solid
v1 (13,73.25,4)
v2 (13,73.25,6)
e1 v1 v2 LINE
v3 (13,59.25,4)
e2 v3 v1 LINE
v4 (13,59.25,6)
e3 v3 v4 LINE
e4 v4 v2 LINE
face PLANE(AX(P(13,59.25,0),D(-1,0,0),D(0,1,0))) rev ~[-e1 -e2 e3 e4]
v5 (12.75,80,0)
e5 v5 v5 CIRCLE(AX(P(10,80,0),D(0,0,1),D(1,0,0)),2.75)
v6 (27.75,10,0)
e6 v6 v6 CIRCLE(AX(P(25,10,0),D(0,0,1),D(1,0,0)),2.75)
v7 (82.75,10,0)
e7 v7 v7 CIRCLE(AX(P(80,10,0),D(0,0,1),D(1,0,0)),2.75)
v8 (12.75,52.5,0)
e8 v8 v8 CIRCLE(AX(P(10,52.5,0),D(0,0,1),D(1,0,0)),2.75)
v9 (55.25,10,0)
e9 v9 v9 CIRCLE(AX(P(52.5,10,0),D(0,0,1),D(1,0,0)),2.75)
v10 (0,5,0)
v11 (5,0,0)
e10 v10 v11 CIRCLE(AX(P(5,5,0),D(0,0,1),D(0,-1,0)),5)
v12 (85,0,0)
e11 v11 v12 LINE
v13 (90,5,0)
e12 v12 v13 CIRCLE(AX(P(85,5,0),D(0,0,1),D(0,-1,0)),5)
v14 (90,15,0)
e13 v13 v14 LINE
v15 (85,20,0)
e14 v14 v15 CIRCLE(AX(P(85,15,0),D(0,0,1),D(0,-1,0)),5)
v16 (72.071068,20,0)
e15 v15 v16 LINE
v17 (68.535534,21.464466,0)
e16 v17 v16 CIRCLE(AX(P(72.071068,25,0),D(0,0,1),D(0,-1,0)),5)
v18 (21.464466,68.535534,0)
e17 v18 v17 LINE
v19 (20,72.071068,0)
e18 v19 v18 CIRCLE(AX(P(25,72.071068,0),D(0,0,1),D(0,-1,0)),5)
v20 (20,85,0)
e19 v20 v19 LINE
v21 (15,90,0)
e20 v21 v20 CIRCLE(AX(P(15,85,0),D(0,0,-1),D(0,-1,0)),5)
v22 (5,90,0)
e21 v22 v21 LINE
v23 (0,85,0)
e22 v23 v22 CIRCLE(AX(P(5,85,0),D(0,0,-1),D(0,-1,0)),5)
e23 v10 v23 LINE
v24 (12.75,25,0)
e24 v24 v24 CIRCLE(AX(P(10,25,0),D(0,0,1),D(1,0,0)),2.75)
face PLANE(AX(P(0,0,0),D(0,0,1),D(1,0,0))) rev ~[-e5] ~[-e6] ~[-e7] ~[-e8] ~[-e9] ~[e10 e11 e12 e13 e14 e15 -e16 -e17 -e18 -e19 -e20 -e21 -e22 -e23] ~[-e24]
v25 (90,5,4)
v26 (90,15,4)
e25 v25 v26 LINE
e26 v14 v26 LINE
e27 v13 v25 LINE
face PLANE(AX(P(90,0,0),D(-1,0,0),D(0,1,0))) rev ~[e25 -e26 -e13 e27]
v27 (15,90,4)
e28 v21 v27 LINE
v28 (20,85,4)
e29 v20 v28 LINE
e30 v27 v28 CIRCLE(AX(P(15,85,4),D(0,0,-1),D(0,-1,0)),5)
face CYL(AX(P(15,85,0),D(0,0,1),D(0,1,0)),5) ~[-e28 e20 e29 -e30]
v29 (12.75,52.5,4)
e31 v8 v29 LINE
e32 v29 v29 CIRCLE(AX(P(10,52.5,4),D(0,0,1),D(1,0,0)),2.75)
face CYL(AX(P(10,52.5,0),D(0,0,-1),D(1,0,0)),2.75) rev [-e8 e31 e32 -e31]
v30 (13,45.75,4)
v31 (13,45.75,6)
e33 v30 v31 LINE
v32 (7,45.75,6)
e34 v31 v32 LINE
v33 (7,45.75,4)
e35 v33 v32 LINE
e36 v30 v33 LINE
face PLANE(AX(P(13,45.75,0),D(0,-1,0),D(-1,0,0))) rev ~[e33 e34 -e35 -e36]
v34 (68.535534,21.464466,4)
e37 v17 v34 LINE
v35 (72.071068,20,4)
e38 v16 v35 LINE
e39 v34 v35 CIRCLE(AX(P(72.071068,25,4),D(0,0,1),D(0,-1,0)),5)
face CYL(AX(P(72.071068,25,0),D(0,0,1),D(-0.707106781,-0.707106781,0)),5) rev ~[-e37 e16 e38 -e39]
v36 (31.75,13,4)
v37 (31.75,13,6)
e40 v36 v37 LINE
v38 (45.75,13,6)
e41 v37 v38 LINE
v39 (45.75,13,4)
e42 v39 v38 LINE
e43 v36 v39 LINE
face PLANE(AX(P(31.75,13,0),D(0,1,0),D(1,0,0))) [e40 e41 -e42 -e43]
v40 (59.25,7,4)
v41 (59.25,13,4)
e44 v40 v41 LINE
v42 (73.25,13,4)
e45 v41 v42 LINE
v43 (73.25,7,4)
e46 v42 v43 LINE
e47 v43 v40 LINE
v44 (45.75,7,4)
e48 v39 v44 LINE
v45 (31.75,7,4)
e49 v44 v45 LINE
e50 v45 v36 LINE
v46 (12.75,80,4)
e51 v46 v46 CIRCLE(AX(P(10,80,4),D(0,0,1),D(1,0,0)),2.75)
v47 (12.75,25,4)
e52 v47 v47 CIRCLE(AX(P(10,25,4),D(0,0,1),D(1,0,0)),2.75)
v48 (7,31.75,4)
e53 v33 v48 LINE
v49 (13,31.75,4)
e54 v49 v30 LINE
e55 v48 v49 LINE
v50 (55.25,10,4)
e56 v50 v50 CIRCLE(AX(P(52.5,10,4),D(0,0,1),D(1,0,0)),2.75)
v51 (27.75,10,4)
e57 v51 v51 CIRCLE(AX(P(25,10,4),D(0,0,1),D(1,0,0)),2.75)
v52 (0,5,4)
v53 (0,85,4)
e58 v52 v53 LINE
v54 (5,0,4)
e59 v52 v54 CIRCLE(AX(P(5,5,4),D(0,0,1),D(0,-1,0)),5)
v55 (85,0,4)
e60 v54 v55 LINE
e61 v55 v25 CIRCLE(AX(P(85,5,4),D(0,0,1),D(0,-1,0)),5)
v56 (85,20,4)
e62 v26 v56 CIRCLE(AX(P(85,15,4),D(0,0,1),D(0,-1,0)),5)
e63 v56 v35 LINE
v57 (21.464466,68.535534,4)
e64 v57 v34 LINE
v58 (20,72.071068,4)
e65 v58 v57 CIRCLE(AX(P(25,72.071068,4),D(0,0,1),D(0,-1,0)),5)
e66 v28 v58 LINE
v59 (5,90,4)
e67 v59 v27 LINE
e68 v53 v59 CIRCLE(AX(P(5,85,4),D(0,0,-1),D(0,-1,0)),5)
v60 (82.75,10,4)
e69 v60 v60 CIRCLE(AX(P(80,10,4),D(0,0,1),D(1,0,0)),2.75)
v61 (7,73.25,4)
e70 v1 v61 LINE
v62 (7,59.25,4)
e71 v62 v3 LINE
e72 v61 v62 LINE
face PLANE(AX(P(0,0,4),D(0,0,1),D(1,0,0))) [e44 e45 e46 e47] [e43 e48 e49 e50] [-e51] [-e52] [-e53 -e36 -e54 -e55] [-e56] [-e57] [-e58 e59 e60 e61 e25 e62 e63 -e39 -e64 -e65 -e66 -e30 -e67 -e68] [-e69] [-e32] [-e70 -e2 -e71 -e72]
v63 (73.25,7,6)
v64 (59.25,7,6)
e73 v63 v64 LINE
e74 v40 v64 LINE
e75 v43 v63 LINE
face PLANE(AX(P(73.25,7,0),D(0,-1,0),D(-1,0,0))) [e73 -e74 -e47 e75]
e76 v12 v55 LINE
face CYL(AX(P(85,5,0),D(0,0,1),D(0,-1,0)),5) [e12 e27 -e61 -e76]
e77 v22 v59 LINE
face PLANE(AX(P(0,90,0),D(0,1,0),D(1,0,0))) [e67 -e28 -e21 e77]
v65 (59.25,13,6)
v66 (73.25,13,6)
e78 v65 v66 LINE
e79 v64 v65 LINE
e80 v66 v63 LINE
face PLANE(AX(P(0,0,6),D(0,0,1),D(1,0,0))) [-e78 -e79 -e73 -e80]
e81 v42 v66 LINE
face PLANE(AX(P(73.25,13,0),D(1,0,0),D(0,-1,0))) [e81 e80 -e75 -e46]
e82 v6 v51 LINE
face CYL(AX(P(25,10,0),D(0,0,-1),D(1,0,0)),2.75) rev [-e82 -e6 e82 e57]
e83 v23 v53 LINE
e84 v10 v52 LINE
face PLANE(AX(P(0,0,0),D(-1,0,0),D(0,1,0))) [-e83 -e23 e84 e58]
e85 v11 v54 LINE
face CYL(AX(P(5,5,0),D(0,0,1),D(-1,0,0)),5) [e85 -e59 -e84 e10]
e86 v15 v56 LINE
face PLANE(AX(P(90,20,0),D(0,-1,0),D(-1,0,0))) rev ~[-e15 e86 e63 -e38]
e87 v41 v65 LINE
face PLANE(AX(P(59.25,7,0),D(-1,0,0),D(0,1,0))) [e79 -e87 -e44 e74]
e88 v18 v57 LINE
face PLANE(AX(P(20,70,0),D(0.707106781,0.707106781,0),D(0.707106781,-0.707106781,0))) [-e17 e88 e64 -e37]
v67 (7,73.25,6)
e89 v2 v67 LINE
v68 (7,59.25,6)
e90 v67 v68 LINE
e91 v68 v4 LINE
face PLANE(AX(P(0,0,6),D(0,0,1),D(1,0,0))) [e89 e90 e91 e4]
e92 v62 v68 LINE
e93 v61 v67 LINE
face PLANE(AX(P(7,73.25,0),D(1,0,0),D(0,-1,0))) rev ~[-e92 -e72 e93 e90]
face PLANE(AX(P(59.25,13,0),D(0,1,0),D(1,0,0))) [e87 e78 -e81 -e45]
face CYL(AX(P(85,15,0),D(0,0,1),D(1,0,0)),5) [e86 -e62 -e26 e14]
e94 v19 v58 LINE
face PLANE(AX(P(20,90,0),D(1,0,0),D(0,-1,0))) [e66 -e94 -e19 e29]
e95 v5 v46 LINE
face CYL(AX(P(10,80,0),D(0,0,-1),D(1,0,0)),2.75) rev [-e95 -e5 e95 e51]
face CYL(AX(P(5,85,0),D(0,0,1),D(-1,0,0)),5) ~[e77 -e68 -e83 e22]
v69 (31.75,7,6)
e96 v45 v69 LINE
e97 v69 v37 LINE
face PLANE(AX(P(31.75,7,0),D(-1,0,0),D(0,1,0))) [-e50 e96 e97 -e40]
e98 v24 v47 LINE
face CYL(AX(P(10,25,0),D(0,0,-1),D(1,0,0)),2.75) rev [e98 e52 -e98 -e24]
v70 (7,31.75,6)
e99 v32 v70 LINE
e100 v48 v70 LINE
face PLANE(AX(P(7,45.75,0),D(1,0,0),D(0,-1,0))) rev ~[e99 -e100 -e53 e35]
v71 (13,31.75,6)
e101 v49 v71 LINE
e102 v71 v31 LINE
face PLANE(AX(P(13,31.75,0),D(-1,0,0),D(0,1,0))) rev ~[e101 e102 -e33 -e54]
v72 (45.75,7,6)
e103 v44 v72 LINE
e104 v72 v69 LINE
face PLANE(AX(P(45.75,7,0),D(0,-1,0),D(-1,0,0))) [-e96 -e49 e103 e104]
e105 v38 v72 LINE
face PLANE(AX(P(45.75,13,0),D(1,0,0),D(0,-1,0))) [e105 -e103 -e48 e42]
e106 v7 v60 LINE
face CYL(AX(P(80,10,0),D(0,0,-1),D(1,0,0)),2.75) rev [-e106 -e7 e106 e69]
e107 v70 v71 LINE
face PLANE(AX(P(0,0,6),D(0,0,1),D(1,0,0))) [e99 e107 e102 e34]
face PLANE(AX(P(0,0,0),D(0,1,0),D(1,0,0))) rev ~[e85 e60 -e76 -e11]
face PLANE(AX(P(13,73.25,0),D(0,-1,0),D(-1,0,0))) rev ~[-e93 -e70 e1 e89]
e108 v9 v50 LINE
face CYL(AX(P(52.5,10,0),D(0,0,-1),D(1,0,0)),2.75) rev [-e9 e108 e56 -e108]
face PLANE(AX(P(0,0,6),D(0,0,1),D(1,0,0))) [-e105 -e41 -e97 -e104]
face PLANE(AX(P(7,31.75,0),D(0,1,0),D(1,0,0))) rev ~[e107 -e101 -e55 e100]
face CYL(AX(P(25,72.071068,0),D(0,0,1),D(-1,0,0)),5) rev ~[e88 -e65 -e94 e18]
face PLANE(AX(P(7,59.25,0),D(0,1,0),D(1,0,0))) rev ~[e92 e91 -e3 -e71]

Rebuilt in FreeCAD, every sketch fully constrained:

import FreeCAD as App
import Part
import Sketcher
from FreeCAD import Vector
Q = App.Units.Quantity


def edges_at(feature, points):
    """Names of the edges that pass closest to the given points."""
    edges = feature.Shape.Edges
    near = lambda p: min(range(len(edges)), key=lambda i: edges[i].distToShape(Part.Vertex(*p))[0])
    return sorted({f"Edge{near(p) + 1}" for p in points})

doc = App.newDocument("Part")
params = doc.addObject("Spreadsheet::Sheet", "Params")
for row, (alias, value) in enumerate([
    ("sketch1_diameter", "5.5 mm"),
    ("sketch1_width", "90 mm"),
    ("sketch1_width2", "20 mm"),
    ("sketch1_width3", "14 mm"),
    ("sketch1_width4", "6 mm"),
    ("pad1_length", "4 mm"),
    ("sketch2_width", "14 mm"),
    ("sketch2_width2", "6 mm"),
    ("pad2_length", "6 mm"),
    ("fillet_radius", "5 mm"),
], start=1):
    params.set(f"A{row}", alias)
    params.set(f"B{row}", "=" + value)
    params.setAlias(f"B{row}", alias)

body = doc.addObject("PartDesign::Body", "Body")

# Sketch on XY plane
sketch1 = doc.addObject("Sketcher::SketchObject", "Sketch")
body.addObject(sketch1)
sketch1.AttachmentSupport = (doc.XY_Plane, [""])
sketch1.MapMode = "FlatFace"
sketch1.addGeometry([
    Part.LineSegment(Vector(0, 90, 0), Vector(0, 0, 0)),  # 0
    Part.LineSegment(Vector(0, 0, 0), Vector(90, 0, 0)),  # 1
    Part.LineSegment(Vector(90, 0, 0), Vector(90, 20, 0)),  # 2
    Part.LineSegment(Vector(90, 20, 0), Vector(70, 20, 0)),  # 3
    Part.LineSegment(Vector(70, 20, 0), Vector(20, 70, 0)),  # 4
    Part.LineSegment(Vector(20, 70, 0), Vector(20, 90, 0)),  # 5
    Part.LineSegment(Vector(20, 90, 0), Vector(0, 90, 0)),  # 6
    Part.Circle(Vector(25, 10, 0), Vector(0, 0, 1), 2.8),  # 7
    Part.LineSegment(Vector(45.8, 13, 0), Vector(45.8, 7, 0)),  # 8
    Part.LineSegment(Vector(45.8, 7, 0), Vector(31.8, 7, 0)),  # 9
    Part.LineSegment(Vector(31.8, 7, 0), Vector(31.8, 13, 0)),  # 10
    Part.LineSegment(Vector(31.8, 13, 0), Vector(45.8, 13, 0)),  # 11
    Part.Circle(Vector(10, 25, 0), Vector(0, 0, 1), 2.8),  # 12
    Part.LineSegment(Vector(13, 31.8, 0), Vector(7, 31.8, 0)),  # 13
    Part.LineSegment(Vector(7, 31.8, 0), Vector(7, 45.8, 0)),  # 14
    Part.LineSegment(Vector(7, 45.8, 0), Vector(13, 45.8, 0)),  # 15
    Part.LineSegment(Vector(13, 45.8, 0), Vector(13, 31.8, 0)),  # 16
    Part.Circle(Vector(52.5, 10, 0), Vector(0, 0, 1), 2.8),  # 17
    Part.LineSegment(Vector(73.2, 13, 0), Vector(73.2, 7, 0)),  # 18
    Part.LineSegment(Vector(73.2, 7, 0), Vector(59.2, 7, 0)),  # 19
    Part.LineSegment(Vector(59.2, 7, 0), Vector(59.2, 13, 0)),  # 20
    Part.LineSegment(Vector(59.2, 13, 0), Vector(73.2, 13, 0)),  # 21
    Part.Circle(Vector(80, 10, 0), Vector(0, 0, 1), 2.8),  # 22
    Part.Circle(Vector(10, 52.5, 0), Vector(0, 0, 1), 2.8),  # 23
    Part.LineSegment(Vector(13, 59.2, 0), Vector(7, 59.2, 0)),  # 24
    Part.LineSegment(Vector(7, 59.2, 0), Vector(7, 73.2, 0)),  # 25
    Part.LineSegment(Vector(7, 73.2, 0), Vector(13, 73.2, 0)),  # 26
    Part.LineSegment(Vector(13, 73.2, 0), Vector(13, 59.2, 0)),  # 27
    Part.Circle(Vector(10, 80, 0), Vector(0, 0, 1), 2.8),  # 28
], False)
sketch1.addConstraint([
    Sketcher.Constraint("Coincident", 0, 2, 1, 1),
    Sketcher.Constraint("Coincident", 1, 2, 2, 1),
    Sketcher.Constraint("Coincident", 2, 2, 3, 1),
    Sketcher.Constraint("Coincident", 3, 2, 4, 1),
    Sketcher.Constraint("Coincident", 4, 2, 5, 1),
    Sketcher.Constraint("Coincident", 5, 2, 6, 1),
    Sketcher.Constraint("Coincident", 6, 2, 0, 1),
    Sketcher.Constraint("Coincident", 8, 2, 9, 1),
    Sketcher.Constraint("Coincident", 9, 2, 10, 1),
    Sketcher.Constraint("Coincident", 10, 2, 11, 1),
    Sketcher.Constraint("Coincident", 11, 2, 8, 1),
    Sketcher.Constraint("Coincident", 13, 2, 14, 1),
    Sketcher.Constraint("Coincident", 14, 2, 15, 1),
    Sketcher.Constraint("Coincident", 15, 2, 16, 1),
    Sketcher.Constraint("Coincident", 16, 2, 13, 1),
    Sketcher.Constraint("Coincident", 18, 2, 19, 1),
    Sketcher.Constraint("Coincident", 19, 2, 20, 1),
    Sketcher.Constraint("Coincident", 20, 2, 21, 1),
    Sketcher.Constraint("Coincident", 21, 2, 18, 1),
    Sketcher.Constraint("Coincident", 24, 2, 25, 1),
    Sketcher.Constraint("Coincident", 25, 2, 26, 1),
    Sketcher.Constraint("Coincident", 26, 2, 27, 1),
    Sketcher.Constraint("Coincident", 27, 2, 24, 1),
    Sketcher.Constraint("Vertical", 0),
    Sketcher.Constraint("Horizontal", 1),
    Sketcher.Constraint("Vertical", 2),
    Sketcher.Constraint("Horizontal", 3),
    Sketcher.Constraint("Vertical", 5),
    Sketcher.Constraint("Horizontal", 6),
    Sketcher.Constraint("Vertical", 8),
    Sketcher.Constraint("Horizontal", 9),
    Sketcher.Constraint("Vertical", 10),
    Sketcher.Constraint("Horizontal", 11),
    Sketcher.Constraint("Horizontal", 13),
    Sketcher.Constraint("Vertical", 14),
    Sketcher.Constraint("Horizontal", 15),
    Sketcher.Constraint("Vertical", 16),
    Sketcher.Constraint("Vertical", 18),
    Sketcher.Constraint("Horizontal", 19),
    Sketcher.Constraint("Vertical", 20),
    Sketcher.Constraint("Horizontal", 21),
    Sketcher.Constraint("Horizontal", 24),
    Sketcher.Constraint("Vertical", 25),
    Sketcher.Constraint("Horizontal", 26),
    Sketcher.Constraint("Vertical", 27),
    Sketcher.Constraint("Coincident", 0, 2, -1, 1),
    Sketcher.Constraint("Equal", 7, 12),
    Sketcher.Constraint("Equal", 12, 17),
    Sketcher.Constraint("Equal", 17, 22),
    Sketcher.Constraint("Equal", 22, 23),
    Sketcher.Constraint("Equal", 23, 28),
    Sketcher.Constraint("Horizontal", 7, 3, 17, 3),
    Sketcher.Constraint("Horizontal", 17, 3, 22, 3),
    Sketcher.Constraint("Horizontal", 9, 2, 18, 2),
    Sketcher.Constraint("Horizontal", 11, 2, 20, 2),
    Sketcher.Constraint("Vertical", 12, 3, 23, 3),
    Sketcher.Constraint("Vertical", 23, 3, 28, 3),
    Sketcher.Constraint("Vertical", 14, 2, 24, 2),
    Sketcher.Constraint("Vertical", 16, 2, 26, 2),
    Sketcher.Constraint("Equal", 3, 6),
    Sketcher.Constraint("Equal", 11, 19),
    Sketcher.Constraint("Equal", 1, 0),
    Sketcher.Constraint("Equal", 6, 2),
    Sketcher.Constraint("Equal", 2, 5),
    Sketcher.Constraint("Equal", 26, 8),
    Sketcher.Constraint("Equal", 21, 14),
    Sketcher.Constraint("Equal", 16, 25),
    Sketcher.Constraint("Diameter", 7, Q("5.5 mm")),
    Sketcher.Constraint("DistanceX", 1, 1, 1, 2, Q("90 mm")),
    Sketcher.Constraint("DistanceX", 3, 2, 3, 1, Q("20 mm")),
    Sketcher.Constraint("DistanceX", 9, 2, 9, 1, Q("14 mm")),
    Sketcher.Constraint("DistanceX", 13, 2, 13, 1, Q("6 mm")),
    Sketcher.Constraint("DistanceY", -1, 1, 7, 3, Q("10 mm")),
    Sketcher.Constraint("DistanceX", -1, 1, 12, 3, Q("10 mm")),
    Sketcher.Constraint("DistanceX", 22, 3, 1, 2, Q("10 mm")),
    Sketcher.Constraint("DistanceX", 7, 3, 1, 2, Q("65 mm")),
    Sketcher.Constraint("DistanceY", 4, 2, 28, 3, Q("10 mm")),
    Sketcher.Constraint("DistanceY", 12, 3, 4, 2, Q("45 mm")),
    Sketcher.Constraint("DistanceX", 17, 3, 1, 2, Q("37.5 mm")),
    Sketcher.Constraint("DistanceY", 23, 3, 5, 2, Q("37.5 mm")),
    Sketcher.Constraint("DistanceY", -1, 1, 8, 2, Q("7 mm")),
    Sketcher.Constraint("DistanceX", -1, 1, 13, 2, Q("7 mm")),
    Sketcher.Constraint("DistanceX", 8, 2, 19, 2, Q("13.5 mm")),
    Sketcher.Constraint("DistanceY", 14, 2, 24, 2, Q("13.5 mm")),
    Sketcher.Constraint("DistanceX", -1, 1, 8, 2, Q("45.75 mm")),
    Sketcher.Constraint("DistanceY", -1, 1, 13, 2, Q("31.75 mm")),
])
sketch1.setExpression("Constraints[67]", "Params.sketch1_diameter")
sketch1.setExpression("Constraints[68]", "Params.sketch1_width")
sketch1.setExpression("Constraints[69]", "Params.sketch1_width2")
sketch1.setExpression("Constraints[70]", "Params.sketch1_width3")
sketch1.setExpression("Constraints[71]", "Params.sketch1_width4")
pad1 = doc.addObject("PartDesign::Pad", "Pad")
body.addObject(pad1)
pad1.Profile = sketch1
pad1.setExpression("Length", "Params.pad1_length")

# Sketch on XY plane
sketch2 = doc.addObject("Sketcher::SketchObject", "Sketch001")
body.addObject(sketch2)
sketch2.AttachmentSupport = (doc.XY_Plane, [""])
sketch2.MapMode = "FlatFace"
sketch2.addGeometry([
    Part.LineSegment(Vector(32, 7, 0), Vector(46, 7, 0)),  # 0
    Part.LineSegment(Vector(46, 7, 0), Vector(46, 13, 0)),  # 1
    Part.LineSegment(Vector(46, 13, 0), Vector(32, 13, 0)),  # 2
    Part.LineSegment(Vector(32, 13, 0), Vector(32, 7, 0)),  # 3
    Part.LineSegment(Vector(59, 7, 0), Vector(73, 7, 0)),  # 4
    Part.LineSegment(Vector(73, 7, 0), Vector(73, 13, 0)),  # 5
    Part.LineSegment(Vector(73, 13, 0), Vector(59, 13, 0)),  # 6
    Part.LineSegment(Vector(59, 13, 0), Vector(59, 7, 0)),  # 7
    Part.LineSegment(Vector(7, 46, 0), Vector(7, 32, 0)),  # 8
    Part.LineSegment(Vector(7, 32, 0), Vector(13, 32, 0)),  # 9
    Part.LineSegment(Vector(13, 32, 0), Vector(13, 46, 0)),  # 10
    Part.LineSegment(Vector(13, 46, 0), Vector(7, 46, 0)),  # 11
    Part.LineSegment(Vector(7, 73, 0), Vector(7, 59, 0)),  # 12
    Part.LineSegment(Vector(7, 59, 0), Vector(13, 59, 0)),  # 13
    Part.LineSegment(Vector(13, 59, 0), Vector(13, 73, 0)),  # 14
    Part.LineSegment(Vector(13, 73, 0), Vector(7, 73, 0)),  # 15
], False)
sketch2.addConstraint([
    Sketcher.Constraint("Coincident", 0, 2, 1, 1),
    Sketcher.Constraint("Coincident", 1, 2, 2, 1),
    Sketcher.Constraint("Coincident", 2, 2, 3, 1),
    Sketcher.Constraint("Coincident", 3, 2, 0, 1),
    Sketcher.Constraint("Coincident", 4, 2, 5, 1),
    Sketcher.Constraint("Coincident", 5, 2, 6, 1),
    Sketcher.Constraint("Coincident", 6, 2, 7, 1),
    Sketcher.Constraint("Coincident", 7, 2, 4, 1),
    Sketcher.Constraint("Coincident", 8, 2, 9, 1),
    Sketcher.Constraint("Coincident", 9, 2, 10, 1),
    Sketcher.Constraint("Coincident", 10, 2, 11, 1),
    Sketcher.Constraint("Coincident", 11, 2, 8, 1),
    Sketcher.Constraint("Coincident", 12, 2, 13, 1),
    Sketcher.Constraint("Coincident", 13, 2, 14, 1),
    Sketcher.Constraint("Coincident", 14, 2, 15, 1),
    Sketcher.Constraint("Coincident", 15, 2, 12, 1),
    Sketcher.Constraint("Horizontal", 0),
    Sketcher.Constraint("Vertical", 1),
    Sketcher.Constraint("Horizontal", 2),
    Sketcher.Constraint("Vertical", 3),
    Sketcher.Constraint("Horizontal", 4),
    Sketcher.Constraint("Vertical", 5),
    Sketcher.Constraint("Horizontal", 6),
    Sketcher.Constraint("Vertical", 7),
    Sketcher.Constraint("Vertical", 8),
    Sketcher.Constraint("Horizontal", 9),
    Sketcher.Constraint("Vertical", 10),
    Sketcher.Constraint("Horizontal", 11),
    Sketcher.Constraint("Vertical", 12),
    Sketcher.Constraint("Horizontal", 13),
    Sketcher.Constraint("Vertical", 14),
    Sketcher.Constraint("Horizontal", 15),
    Sketcher.Constraint("Horizontal", 3, 2, 4, 2),
    Sketcher.Constraint("Horizontal", 2, 2, 5, 2),
    Sketcher.Constraint("Vertical", 11, 2, 12, 2),
    Sketcher.Constraint("Vertical", 10, 2, 13, 2),
    Sketcher.Constraint("Equal", 2, 4),
    Sketcher.Constraint("Equal", 15, 1),
    Sketcher.Constraint("Equal", 6, 8),
    Sketcher.Constraint("Equal", 10, 12),
    Sketcher.Constraint("DistanceX", 0, 1, 0, 2, Q("14 mm")),
    Sketcher.Constraint("DistanceX", 9, 1, 9, 2, Q("6 mm")),
    Sketcher.Constraint("DistanceY", -1, 1, 0, 2, Q("7 mm")),
    Sketcher.Constraint("DistanceX", -1, 1, 8, 2, Q("7 mm")),
    Sketcher.Constraint("DistanceX", 0, 2, 4, 2, Q("27.5 mm")),
    Sketcher.Constraint("DistanceY", 11, 2, 12, 2, Q("13.5 mm")),
    Sketcher.Constraint("DistanceX", -1, 1, 0, 2, Q("45.75 mm")),
    Sketcher.Constraint("DistanceY", -1, 1, 8, 2, Q("31.75 mm")),
])
sketch2.setExpression("Constraints[40]", "Params.sketch2_width")
sketch2.setExpression("Constraints[41]", "Params.sketch2_width2")
pad2 = doc.addObject("PartDesign::Pad", "Pad001")
body.addObject(pad2)
pad2.Profile = sketch2
pad2.setExpression("Length", "Params.pad2_length")
doc.recompute()

fillet = doc.addObject("PartDesign::Fillet", "Fillet")
body.addObject(fillet)
fillet.Base = (pad2, edges_at(pad2, [
    (0, 0, 2),
    (90, 0, 2),
    (90, 20, 2),
    (20, 70, 2),
    (70, 20, 2),
    (20, 90, 2),
    (0, 90, 2),
]))
fillet.setExpression("Radius", "Params.fillet_radius")

doc.recompute()
